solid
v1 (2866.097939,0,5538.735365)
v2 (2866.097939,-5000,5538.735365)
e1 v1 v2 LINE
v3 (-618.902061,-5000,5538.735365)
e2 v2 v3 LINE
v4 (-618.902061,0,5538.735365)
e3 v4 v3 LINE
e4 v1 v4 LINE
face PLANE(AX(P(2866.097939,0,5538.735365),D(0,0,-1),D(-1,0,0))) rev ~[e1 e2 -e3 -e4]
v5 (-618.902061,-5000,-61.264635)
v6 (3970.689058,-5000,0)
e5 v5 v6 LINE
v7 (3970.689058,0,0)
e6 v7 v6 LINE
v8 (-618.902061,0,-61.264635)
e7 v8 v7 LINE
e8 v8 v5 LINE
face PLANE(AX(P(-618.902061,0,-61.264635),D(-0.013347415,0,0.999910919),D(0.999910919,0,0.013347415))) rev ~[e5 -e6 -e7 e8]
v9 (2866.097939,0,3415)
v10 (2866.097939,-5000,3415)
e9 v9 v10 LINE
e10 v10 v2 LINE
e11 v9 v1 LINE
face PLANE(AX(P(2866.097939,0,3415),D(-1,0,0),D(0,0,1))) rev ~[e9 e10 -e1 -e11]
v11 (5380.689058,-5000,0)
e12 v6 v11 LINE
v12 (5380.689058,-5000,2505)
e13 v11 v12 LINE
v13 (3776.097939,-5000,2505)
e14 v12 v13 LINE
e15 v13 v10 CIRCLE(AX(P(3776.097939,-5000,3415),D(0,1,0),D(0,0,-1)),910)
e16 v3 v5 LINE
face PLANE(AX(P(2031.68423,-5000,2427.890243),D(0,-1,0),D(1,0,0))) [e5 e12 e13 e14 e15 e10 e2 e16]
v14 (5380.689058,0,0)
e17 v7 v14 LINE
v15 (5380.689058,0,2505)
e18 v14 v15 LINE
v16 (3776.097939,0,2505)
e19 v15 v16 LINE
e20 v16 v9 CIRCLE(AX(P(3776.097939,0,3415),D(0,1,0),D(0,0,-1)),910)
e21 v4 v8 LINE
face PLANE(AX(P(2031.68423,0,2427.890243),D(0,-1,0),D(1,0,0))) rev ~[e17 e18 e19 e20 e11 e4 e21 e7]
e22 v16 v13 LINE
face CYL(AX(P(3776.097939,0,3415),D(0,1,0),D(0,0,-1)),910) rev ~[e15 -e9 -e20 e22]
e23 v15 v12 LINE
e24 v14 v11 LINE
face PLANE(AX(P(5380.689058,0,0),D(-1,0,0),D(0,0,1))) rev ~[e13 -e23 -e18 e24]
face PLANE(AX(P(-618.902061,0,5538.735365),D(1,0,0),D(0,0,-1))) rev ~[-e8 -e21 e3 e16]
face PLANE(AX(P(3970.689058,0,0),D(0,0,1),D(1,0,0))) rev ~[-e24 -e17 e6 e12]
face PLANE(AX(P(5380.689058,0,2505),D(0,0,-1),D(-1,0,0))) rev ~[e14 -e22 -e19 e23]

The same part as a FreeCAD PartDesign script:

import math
import FreeCAD as App
import Part
import Sketcher

V = App.Vector
Q = App.Units.Quantity

doc = App.newDocument("Part")
params = doc.addObject("Spreadsheet::Sheet", "Params")
for row, (alias, value) in enumerate([
    ("sketch1_radius", "910 mm"),
    ("sketch1_width", "3485 mm"),
    ("sketch1_width2", "1410 mm"),
    ("sketch1_height", "5600 mm"),
    ("sketch1_height2", "2505 mm"),
    ("pad1_length", "5000 mm"),
], start=1):
    params.set(f"A{row}", alias)
    params.set(f"B{row}", "=" + value)
    params.setAlias(f"B{row}", alias)

body = doc.addObject("PartDesign::Body", "Body")

# Sketch on XZ plane
sketch1 = doc.addObject("Sketcher::SketchObject", "Sketch")
body.addObject(sketch1)
sketch1.AttachmentSupport = (doc.XZ_Plane, [""])
sketch1.MapMode = "FlatFace"
sketch1.addGeometry([
    Part.LineSegment(V(2866.097939, 5538.735365, 0), V(-618.902061, 5538.735365, 0)),  # 0
    Part.LineSegment(V(-618.902061, 5538.735365, 0), V(-618.902061, -61.264635, 0)),  # 1
    Part.LineSegment(V(-618.902061, -61.264635, 0), V(3970.689058, 0, 0)),  # 2
    Part.LineSegment(V(3970.689058, 0, 0), V(5380.689058, 0, 0)),  # 3
    Part.LineSegment(V(5380.689058, 0, 0), V(5380.689058, 2505, 0)),  # 4
    Part.LineSegment(V(5380.689058, 2505, 0), V(3776.097939, 2505, 0)),  # 5
    Part.ArcOfCircle(Part.Circle(V(3776.097939, 3415, 0), V(0, 0, 1), 910), math.radians(180), math.radians(270)),  # 6
    Part.LineSegment(V(2866.097939, 3415, 0), V(2866.097939, 5538.735365, 0)),  # 7
], False)
sketch1.addConstraint([
    Sketcher.Constraint("Coincident", 0, 2, 1, 1),
    Sketcher.Constraint("Coincident", 1, 2, 2, 1),
    Sketcher.Constraint("Coincident", 2, 2, 3, 1),
    Sketcher.Constraint("Coincident", 3, 2, 4, 1),
    Sketcher.Constraint("Coincident", 4, 2, 5, 1),
    Sketcher.Constraint("Coincident", 5, 2, 6, 2),
    Sketcher.Constraint("Coincident", 6, 1, 7, 1),
    Sketcher.Constraint("Coincident", 7, 2, 0, 1),
    Sketcher.Constraint("Horizontal", 0),
    Sketcher.Constraint("Vertical", 1),
    Sketcher.Constraint("Horizontal", 3),
    Sketcher.Constraint("Vertical", 4),
    Sketcher.Constraint("Horizontal", 5),
    Sketcher.Constraint("Vertical", 7),
    Sketcher.Constraint("PointOnObject", 2, 2, -1),
    Sketcher.Constraint("Radius", 6, Q("910 mm")),
    Sketcher.Constraint("DistanceX", 0, 2, 0, 1, Q("3485 mm")),
    Sketcher.Constraint("DistanceX", 3, 1, 3, 2, Q("1410 mm")),
    Sketcher.Constraint("DistanceY", 1, 2, 1, 1, Q("5600 mm")),
    Sketcher.Constraint("DistanceY", 4, 1, 4, 2, Q("2505 mm")),
    Sketcher.Constraint("Distance", 2, Q("4589.999999 mm")),
    Sketcher.Constraint("DistanceX", 1, 2, 5, 2, Q("4395 mm")),
    Sketcher.Constraint("DistanceX", 5, 2, 5, 1, Q("1604.591119 mm")),
    Sketcher.Constraint("DistanceY", 7, 1, 7, 2, Q("2123.735365 mm")),
    Sketcher.Constraint("DistanceX", -1, 1, 6, 3, Q("3776.097939 mm")),
])
sketch1.setExpression("Constraints[15]", "Params.sketch1_radius")
sketch1.setExpression("Constraints[16]", "Params.sketch1_width")
sketch1.setExpression("Constraints[17]", "Params.sketch1_width2")
sketch1.setExpression("Constraints[18]", "Params.sketch1_height")
sketch1.setExpression("Constraints[19]", "Params.sketch1_height2")
pad1 = doc.addObject("PartDesign::Pad", "Pad")
body.addObject(pad1)
pad1.Profile = sketch1
pad1.setExpression("Length", "Params.pad1_length")

doc.recompute()
